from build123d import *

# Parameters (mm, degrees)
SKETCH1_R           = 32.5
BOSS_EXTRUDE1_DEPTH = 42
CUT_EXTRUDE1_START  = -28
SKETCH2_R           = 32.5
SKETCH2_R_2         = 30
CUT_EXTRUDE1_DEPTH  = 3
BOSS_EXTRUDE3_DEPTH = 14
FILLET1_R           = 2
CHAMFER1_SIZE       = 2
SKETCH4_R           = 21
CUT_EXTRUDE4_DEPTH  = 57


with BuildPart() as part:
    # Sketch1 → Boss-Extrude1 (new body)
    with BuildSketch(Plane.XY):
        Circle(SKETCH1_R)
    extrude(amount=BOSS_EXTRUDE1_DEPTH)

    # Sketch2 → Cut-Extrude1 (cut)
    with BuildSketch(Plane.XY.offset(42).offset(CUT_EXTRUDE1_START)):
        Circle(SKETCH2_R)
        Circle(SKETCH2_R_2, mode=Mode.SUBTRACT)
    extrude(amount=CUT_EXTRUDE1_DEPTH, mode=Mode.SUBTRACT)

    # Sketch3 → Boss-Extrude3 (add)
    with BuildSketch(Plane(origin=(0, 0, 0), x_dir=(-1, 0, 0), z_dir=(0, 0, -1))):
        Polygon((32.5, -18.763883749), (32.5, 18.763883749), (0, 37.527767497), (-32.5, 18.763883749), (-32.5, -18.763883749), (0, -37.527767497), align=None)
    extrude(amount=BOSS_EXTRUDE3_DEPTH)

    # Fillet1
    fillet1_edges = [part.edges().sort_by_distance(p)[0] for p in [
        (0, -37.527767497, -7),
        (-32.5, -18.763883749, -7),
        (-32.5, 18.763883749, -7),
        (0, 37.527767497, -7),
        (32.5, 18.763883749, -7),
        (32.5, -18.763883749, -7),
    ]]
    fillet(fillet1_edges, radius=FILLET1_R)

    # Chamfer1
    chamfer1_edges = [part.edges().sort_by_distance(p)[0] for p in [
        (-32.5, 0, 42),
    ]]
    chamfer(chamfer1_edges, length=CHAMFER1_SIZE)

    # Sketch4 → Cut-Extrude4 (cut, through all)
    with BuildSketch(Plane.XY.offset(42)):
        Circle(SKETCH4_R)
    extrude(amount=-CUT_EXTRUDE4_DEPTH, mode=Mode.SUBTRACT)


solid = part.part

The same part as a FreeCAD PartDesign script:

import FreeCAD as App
import Part
import Sketcher
Q = App.Units.Quantity


def edges_at(feature, points):
    """Names of the edges that pass closest to the given points."""
    edges = feature.Shape.Edges
    near = lambda p: min(range(len(edges)), key=lambda i: edges[i].distToShape(Part.Vertex(*p))[0])
    return sorted({f"Edge{near(p) + 1}" for p in points})


def add_polygon(sketch, points):
    """Adds a closed chain of lines whose ends are joined by coincident constraints."""
    first, n = sketch.GeometryCount, len(points)
    for a, b in zip(points, points[1:] + points[:1]):
        sketch.addGeometry(Part.LineSegment(App.Vector(*a, 0), App.Vector(*b, 0)), False)
    for i in range(n):
        sketch.addConstraint(Sketcher.Constraint("Coincident", first + i, 2, first + (i + 1) % n, 1))

doc = App.newDocument("Part")
body = doc.addObject("PartDesign::Body", "Body")

# Sketch on XY plane
sketch1 = doc.addObject("Sketcher::SketchObject", "Sketch")
body.addObject(sketch1)
sketch1.AttachmentSupport = (doc.XY_Plane, [""])
sketch1.MapMode = "FlatFace"
sketch1.addGeometry(Part.Circle(App.Vector(0, 0, 0), App.Vector(0, 0, 1), 32.5), False)
sketch1.addConstraint([
    Sketcher.Constraint("Coincident", 0, 3, -1, 1),
    Sketcher.Constraint("Diameter", 0, Q("65 mm")),
])
pad1 = doc.addObject("PartDesign::Pad", "Pad")
body.addObject(pad1)
pad1.Profile = sketch1
pad1.Length = 42

# Sketch on XY plane
sketch2 = doc.addObject("Sketcher::SketchObject", "Sketch001")
body.addObject(sketch2)
sketch2.AttachmentSupport = (doc.XY_Plane, [""])
sketch2.MapMode = "FlatFace"
sketch2.AttachmentOffset = App.Placement(App.Vector(0, 0, 14), App.Rotation())
sketch2.addGeometry([
    Part.Circle(App.Vector(0, 0, 0), App.Vector(0, 0, 1), 32.5),
    Part.Circle(App.Vector(0, 0, 0), App.Vector(0, 0, 1), 30),
], False)
sketch2.addConstraint([
    Sketcher.Constraint("Coincident", 0, 3, -1, 1),
    Sketcher.Constraint("Coincident", 1, 3, -1, 1),
    Sketcher.Constraint("Diameter", 0, Q("65 mm")),
    Sketcher.Constraint("Diameter", 1, Q("60 mm")),
])
pocket1 = doc.addObject("PartDesign::Pocket", "Pocket")
body.addObject(pocket1)
pocket1.Profile = sketch2
pocket1.Length = 3
pocket1.Reversed = True

# Sketch on XY plane
sketch3 = doc.addObject("Sketcher::SketchObject", "Sketch002")
body.addObject(sketch3)
sketch3.AttachmentSupport = (doc.XY_Plane, [""])
sketch3.MapMode = "FlatFace"
add_polygon(sketch3, [(-32.5, -18.763884), (-32.5, 18.763884), (0, 37.527767), (32.5, 18.763884), (32.5, -18.763884), (0, -37.527767)])  # lines 0-5
sketch3.addConstraint([
    Sketcher.Constraint("Vertical", 0),
    Sketcher.Constraint("Vertical", 3),
    Sketcher.Constraint("Symmetric", 0, 2, 3, 2, -1, 1),
    Sketcher.Constraint("Symmetric", 1, 2, 4, 2, -1, 1),
    Sketcher.Constraint("PointOnObject", 1, 2, -2),
    Sketcher.Constraint("Parallel", 2, 5),
    Sketcher.Constraint("Horizontal", 0, 2, 2, 2),
    Sketcher.Constraint("Angle", 1, Q("30 deg")),
    Sketcher.Constraint("DistanceX", 0, 2, 2, 2, Q("65 mm")),
    Sketcher.Constraint("DistanceY", 0, 1, 0, 2, Q("37.527767 mm")),
])
pad2 = doc.addObject("PartDesign::Pad", "Pad001")
body.addObject(pad2)
pad2.Profile = sketch3
pad2.Length = 14
pad2.Reversed = True
doc.recompute()

fillet = doc.addObject("PartDesign::Fillet", "Fillet")
body.addObject(fillet)
fillet.Base = (pad2, edges_at(pad2, [
    (0, -37.528, -7),
    (-32.5, -18.764, -7),
    (-32.5, 18.764, -7),
    (0, 37.528, -7),
    (32.5, 18.764, -7),
    (32.5, -18.764, -7),
]))
fillet.Radius = 2
doc.recompute()

chamfer = doc.addObject("PartDesign::Chamfer", "Chamfer")
body.addObject(chamfer)
chamfer.Base = (fillet, edges_at(fillet, [(-32.5, 0, 42)]))
chamfer.Size = 2

# Sketch on XY plane
sketch4 = doc.addObject("Sketcher::SketchObject", "Sketch003")
body.addObject(sketch4)
sketch4.AttachmentSupport = (doc.XY_Plane, [""])
sketch4.MapMode = "FlatFace"
sketch4.AttachmentOffset = App.Placement(App.Vector(0, 0, 42), App.Rotation())
sketch4.addGeometry(Part.Circle(App.Vector(0, 0, 0), App.Vector(0, 0, 1), 21), False)
sketch4.addConstraint([
    Sketcher.Constraint("Coincident", 0, 3, -1, 1),
    Sketcher.Constraint("Diameter", 0, Q("42 mm")),
])
pocket2 = doc.addObject("PartDesign::Pocket", "Pocket001")
body.addObject(pocket2)
pocket2.Profile = sketch4
pocket2.Type = "ThroughAll"

doc.recompute()
